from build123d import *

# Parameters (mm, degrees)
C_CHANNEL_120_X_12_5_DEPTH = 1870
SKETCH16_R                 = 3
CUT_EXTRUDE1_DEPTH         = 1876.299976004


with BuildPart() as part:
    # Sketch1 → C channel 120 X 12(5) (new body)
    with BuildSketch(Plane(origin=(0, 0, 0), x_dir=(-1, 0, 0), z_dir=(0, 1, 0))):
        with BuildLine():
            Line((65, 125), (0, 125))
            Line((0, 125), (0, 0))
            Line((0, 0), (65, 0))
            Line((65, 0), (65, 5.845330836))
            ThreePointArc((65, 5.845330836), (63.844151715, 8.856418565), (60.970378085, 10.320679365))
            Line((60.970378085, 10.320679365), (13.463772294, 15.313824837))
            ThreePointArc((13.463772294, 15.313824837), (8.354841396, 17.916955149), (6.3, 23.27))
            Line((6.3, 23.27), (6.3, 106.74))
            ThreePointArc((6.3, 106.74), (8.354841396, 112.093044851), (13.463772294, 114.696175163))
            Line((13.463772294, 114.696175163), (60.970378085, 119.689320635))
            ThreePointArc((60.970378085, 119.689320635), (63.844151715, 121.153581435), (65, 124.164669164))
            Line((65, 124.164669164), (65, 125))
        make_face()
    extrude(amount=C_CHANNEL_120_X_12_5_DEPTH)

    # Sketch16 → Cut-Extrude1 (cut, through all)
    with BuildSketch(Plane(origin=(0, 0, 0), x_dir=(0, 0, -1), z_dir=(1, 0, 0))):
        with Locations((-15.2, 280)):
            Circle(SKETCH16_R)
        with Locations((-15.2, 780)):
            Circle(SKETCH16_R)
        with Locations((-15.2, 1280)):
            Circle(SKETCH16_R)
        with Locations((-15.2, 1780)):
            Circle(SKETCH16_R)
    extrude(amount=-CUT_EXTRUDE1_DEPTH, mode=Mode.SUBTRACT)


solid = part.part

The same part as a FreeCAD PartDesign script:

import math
import FreeCAD as App
import Part
import Sketcher

V = App.Vector
Q = App.Units.Quantity

doc = App.newDocument("Part")
body = doc.addObject("PartDesign::Body", "Body")

# Sketch on XZ plane
sketch1 = doc.addObject("Sketcher::SketchObject", "Sketch")
body.addObject(sketch1)
sketch1.AttachmentSupport = (doc.XZ_Plane, [""])
sketch1.MapMode = "FlatFace"
sketch1.addGeometry([
    Part.LineSegment(V(-65, 125, 0), V(0, 125, 0)),  # 0
    Part.LineSegment(V(0, 125, 0), V(0, 0, 0)),  # 1
    Part.LineSegment(V(0, 0, 0), V(-65, 0, 0)),  # 2
    Part.LineSegment(V(-65, 0, 0), V(-65, 5.8, 0)),  # 3
    Part.ArcOfCircle(Part.Circle(V(-60.5, 5.8, 0), V(0, 0, 1), 4.5), math.radians(96), math.radians(180)),  # 4
    Part.LineSegment(V(-61, 10.3, 0), V(-13.5, 15.3, 0)),  # 5
    Part.ArcOfCircle(Part.Circle(V(-14.3, 23.3, 0), V(0, 0, 1), 8), math.radians(-84), math.radians(0)),  # 6
    Part.LineSegment(V(-6.3, 23.3, 0), V(-6.3, 106.7, 0)),  # 7
    Part.ArcOfCircle(Part.Circle(V(-14.3, 106.7, 0), V(0, 0, 1), 8), math.radians(0), math.radians(84)),  # 8
    Part.LineSegment(V(-13.5, 114.7, 0), V(-61, 119.7, 0)),  # 9
    Part.ArcOfCircle(Part.Circle(V(-60.5, 124.2, 0), V(0, 0, 1), 4.5), math.radians(180), math.radians(264)),  # 10
    Part.LineSegment(V(-65, 124.2, 0), V(-65, 125, 0)),  # 11
], False)
sketch1.addConstraint([
    Sketcher.Constraint("Coincident", 0, 2, 1, 1),
    Sketcher.Constraint("Coincident", 1, 2, 2, 1),
    Sketcher.Constraint("Coincident", 2, 2, 3, 1),
    Sketcher.Constraint("Tangent", 3, 2, 4, 2),
    Sketcher.Constraint("Tangent", 4, 1, 5, 1),
    Sketcher.Constraint("Tangent", 5, 2, 6, 1),
    Sketcher.Constraint("Tangent", 6, 2, 7, 1),
    Sketcher.Constraint("Tangent", 7, 2, 8, 1),
    Sketcher.Constraint("Tangent", 8, 2, 9, 1),
    Sketcher.Constraint("Tangent", 9, 2, 10, 2),
    Sketcher.Constraint("Tangent", 10, 1, 11, 1),
    Sketcher.Constraint("Coincident", 11, 2, 0, 1),
    Sketcher.Constraint("Horizontal", 0),
    Sketcher.Constraint("Vertical", 1),
    Sketcher.Constraint("Horizontal", 2),
    Sketcher.Constraint("Vertical", 3),
    Sketcher.Constraint("Vertical", 7),
    Sketcher.Constraint("Vertical", 11),
    Sketcher.Constraint("Coincident", 1, 2, -1, 1),
    Sketcher.Constraint("Equal", 6, 8),
    Sketcher.Constraint("Equal", 4, 10),
    Sketcher.Constraint("Vertical", 4, 3, 10, 3),
    Sketcher.Constraint("Vertical", 5, 2, 8, 2),
    Sketcher.Constraint("Radius", 6, 8.0),
    Sketcher.Constraint("Radius", 4, 4.5),
    Sketcher.Constraint("DistanceX", 0, 1, 0, 2, 65.0),
    Sketcher.Constraint("DistanceY", 1, 2, 1, 1, 125.0),
    Sketcher.Constraint("Angle", 5, Q("6 deg")),
    Sketcher.Constraint("DistanceY", 7, 1, 7, 2, 83.47),
    Sketcher.Constraint("DistanceX", 6, 3, -1, 1, 14.3),
    Sketcher.Constraint("DistanceY", -1, 1, 6, 3, 23.27),
])
pad1 = doc.addObject("PartDesign::Pad", "Pad")
body.addObject(pad1)
pad1.Profile = sketch1
pad1.Length = 1870
pad1.Reversed = True

# Sketch on YZ plane
sketch2 = doc.addObject("Sketcher::SketchObject", "Sketch001")
body.addObject(sketch2)
sketch2.AttachmentSupport = (doc.YZ_Plane, [""])
sketch2.MapMode = "FlatFace"
sketch2.addGeometry([
    Part.Circle(V(280, 15.2, 0), V(0, 0, 1), 3),
    Part.Circle(V(780, 15.2, 0), V(0, 0, 1), 3),
    Part.Circle(V(1280, 15.2, 0), V(0, 0, 1), 3),
    Part.Circle(V(1780, 15.2, 0), V(0, 0, 1), 3),
], False)
sketch2.addConstraint([
    Sketcher.Constraint("Equal", 0, 1),
    Sketcher.Constraint("Equal", 1, 2),
    Sketcher.Constraint("Equal", 2, 3),
    Sketcher.Constraint("Horizontal", 0, 3, 1, 3),
    Sketcher.Constraint("Horizontal", 1, 3, 2, 3),
    Sketcher.Constraint("Horizontal", 2, 3, 3, 3),
    Sketcher.Constraint("Diameter", 0, 6.0),
    Sketcher.Constraint("DistanceX", -1, 1, 0, 3, 280.0),
    Sketcher.Constraint("DistanceX", -1, 1, 1, 3, 780.0),
    Sketcher.Constraint("DistanceX", -1, 1, 2, 3, 1280.0),
    Sketcher.Constraint("DistanceX", -1, 1, 3, 3, 1780.0),
    Sketcher.Constraint("DistanceY", -1, 1, 0, 3, 15.2),
])
pocket1 = doc.addObject("PartDesign::Pocket", "Pocket")
body.addObject(pocket1)
pocket1.Profile = sketch2
pocket1.Type = "ThroughAll"

doc.recompute()
